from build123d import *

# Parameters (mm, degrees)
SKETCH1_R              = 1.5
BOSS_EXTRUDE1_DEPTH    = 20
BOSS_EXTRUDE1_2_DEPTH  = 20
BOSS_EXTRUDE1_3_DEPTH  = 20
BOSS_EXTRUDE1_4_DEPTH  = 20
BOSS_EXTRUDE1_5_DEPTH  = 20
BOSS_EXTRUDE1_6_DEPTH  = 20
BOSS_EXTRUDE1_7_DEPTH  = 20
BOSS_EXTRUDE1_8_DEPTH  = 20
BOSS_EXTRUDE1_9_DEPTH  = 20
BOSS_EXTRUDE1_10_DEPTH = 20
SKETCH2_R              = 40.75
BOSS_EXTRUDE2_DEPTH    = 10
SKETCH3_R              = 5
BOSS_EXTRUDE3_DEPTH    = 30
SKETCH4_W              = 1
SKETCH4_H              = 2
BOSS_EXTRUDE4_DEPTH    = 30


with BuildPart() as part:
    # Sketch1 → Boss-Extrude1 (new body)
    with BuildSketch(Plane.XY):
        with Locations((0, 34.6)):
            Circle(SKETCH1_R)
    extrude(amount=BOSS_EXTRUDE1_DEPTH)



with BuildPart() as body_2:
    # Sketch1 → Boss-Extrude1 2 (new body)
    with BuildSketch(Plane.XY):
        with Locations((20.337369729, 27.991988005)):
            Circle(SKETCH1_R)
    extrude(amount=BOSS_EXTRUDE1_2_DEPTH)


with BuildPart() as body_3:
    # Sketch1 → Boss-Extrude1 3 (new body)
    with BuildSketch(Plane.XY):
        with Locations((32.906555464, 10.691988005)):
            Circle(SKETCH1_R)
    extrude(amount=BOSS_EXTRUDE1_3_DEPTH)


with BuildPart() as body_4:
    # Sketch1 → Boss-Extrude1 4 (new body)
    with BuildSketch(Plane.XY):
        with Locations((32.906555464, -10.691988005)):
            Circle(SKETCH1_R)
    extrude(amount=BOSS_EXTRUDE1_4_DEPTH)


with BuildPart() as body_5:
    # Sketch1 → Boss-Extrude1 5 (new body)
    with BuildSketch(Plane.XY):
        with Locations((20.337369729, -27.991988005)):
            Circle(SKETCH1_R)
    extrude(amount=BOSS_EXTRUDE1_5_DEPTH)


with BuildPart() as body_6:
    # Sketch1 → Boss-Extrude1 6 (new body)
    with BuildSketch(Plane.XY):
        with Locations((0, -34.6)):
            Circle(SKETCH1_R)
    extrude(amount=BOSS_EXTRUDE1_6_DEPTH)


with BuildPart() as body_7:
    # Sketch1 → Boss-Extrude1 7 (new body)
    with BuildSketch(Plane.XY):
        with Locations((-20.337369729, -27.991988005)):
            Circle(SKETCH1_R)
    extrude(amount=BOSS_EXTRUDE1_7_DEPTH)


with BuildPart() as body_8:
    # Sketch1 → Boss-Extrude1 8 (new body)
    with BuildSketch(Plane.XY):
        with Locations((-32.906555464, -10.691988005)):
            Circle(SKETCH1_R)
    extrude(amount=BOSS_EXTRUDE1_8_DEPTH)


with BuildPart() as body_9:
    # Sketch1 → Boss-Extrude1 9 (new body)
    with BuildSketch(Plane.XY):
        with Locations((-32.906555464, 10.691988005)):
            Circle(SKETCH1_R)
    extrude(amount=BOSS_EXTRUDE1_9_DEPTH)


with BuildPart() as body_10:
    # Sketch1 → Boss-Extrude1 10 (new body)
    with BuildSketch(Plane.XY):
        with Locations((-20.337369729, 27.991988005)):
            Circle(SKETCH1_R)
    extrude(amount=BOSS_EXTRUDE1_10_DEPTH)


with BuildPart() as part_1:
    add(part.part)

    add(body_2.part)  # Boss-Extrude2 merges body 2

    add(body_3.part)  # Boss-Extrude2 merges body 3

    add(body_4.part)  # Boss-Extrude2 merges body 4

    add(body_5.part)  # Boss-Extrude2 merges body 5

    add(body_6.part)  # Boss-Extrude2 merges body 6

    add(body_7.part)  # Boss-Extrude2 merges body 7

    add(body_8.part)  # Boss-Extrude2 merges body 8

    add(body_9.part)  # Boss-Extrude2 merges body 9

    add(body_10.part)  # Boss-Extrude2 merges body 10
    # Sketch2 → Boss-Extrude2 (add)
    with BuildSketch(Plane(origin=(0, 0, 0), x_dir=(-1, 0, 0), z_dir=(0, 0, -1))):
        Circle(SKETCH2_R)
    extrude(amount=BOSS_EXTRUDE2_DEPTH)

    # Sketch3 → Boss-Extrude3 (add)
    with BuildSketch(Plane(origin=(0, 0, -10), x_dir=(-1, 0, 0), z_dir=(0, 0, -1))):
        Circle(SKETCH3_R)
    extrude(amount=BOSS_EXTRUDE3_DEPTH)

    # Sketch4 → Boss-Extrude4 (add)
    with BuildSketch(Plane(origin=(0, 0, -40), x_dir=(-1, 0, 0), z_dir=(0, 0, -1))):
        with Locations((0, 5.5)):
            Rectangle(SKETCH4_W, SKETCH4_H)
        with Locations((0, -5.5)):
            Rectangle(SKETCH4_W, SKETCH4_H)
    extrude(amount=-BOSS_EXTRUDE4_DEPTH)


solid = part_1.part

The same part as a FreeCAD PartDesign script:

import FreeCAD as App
import Part
import Sketcher

V = App.Vector


def add_polygon(sketch, points):
    """Adds a closed chain of lines whose ends are joined by coincident constraints."""
    first, n = sketch.GeometryCount, len(points)
    for a, b in zip(points, points[1:] + points[:1]):
        sketch.addGeometry(Part.LineSegment(App.Vector(*a, 0), App.Vector(*b, 0)), False)
    for i in range(n):
        sketch.addConstraint(Sketcher.Constraint("Coincident", first + i, 2, first + (i + 1) % n, 1))

doc = App.newDocument("Part")
body = doc.addObject("PartDesign::Body", "Body")

sketch1 = body.newObject("Sketcher::SketchObject", "Sketch")
sketch1.AttachmentSupport = (doc.getObject("XY_Plane"), [""])
sketch1.MapMode = "FlatFace"
sketch1.addGeometry(Part.Circle(V(0, 34.6, 0), V(0, 0, 1), 1.5), False)
sketch1.addConstraint(Sketcher.Constraint("PointOnObject", 0, 3, -2))
sketch1.addConstraint(Sketcher.Constraint("Diameter", 0, 3.0))
sketch1.addConstraint(Sketcher.Constraint("DistanceY", -1, 1, 0, 3, 34.6))
pad1 = body.newObject("PartDesign::Pad", "Pad")
pad1.Profile = sketch1
pad1.Length = 20
body2 = doc.addObject("PartDesign::Body", "Body001")

sketch2 = body2.newObject("Sketcher::SketchObject", "Sketch001")
sketch2.AttachmentSupport = (doc.getObject("XY_Plane001"), [""])
sketch2.MapMode = "FlatFace"
sketch2.addGeometry(Part.Circle(V(20.3, 28, 0), V(0, 0, 1), 1.5), False)
sketch2.addConstraint(Sketcher.Constraint("Diameter", 0, 3.0))
sketch2.addConstraint(Sketcher.Constraint("DistanceX", -1, 1, 0, 3, 20.33737))
sketch2.addConstraint(Sketcher.Constraint("DistanceY", -1, 1, 0, 3, 27.991988))
pad2 = body2.newObject("PartDesign::Pad", "Pad001")
pad2.Profile = sketch2
pad2.Length = 20
body3 = doc.addObject("PartDesign::Body", "Body002")

sketch3 = body3.newObject("Sketcher::SketchObject", "Sketch002")
sketch3.AttachmentSupport = (doc.getObject("XY_Plane002"), [""])
sketch3.MapMode = "FlatFace"
sketch3.addGeometry(Part.Circle(V(32.9, 10.7, 0), V(0, 0, 1), 1.5), False)
sketch3.addConstraint(Sketcher.Constraint("Diameter", 0, 3.0))
sketch3.addConstraint(Sketcher.Constraint("DistanceY", -1, 1, 0, 3, 10.691988))
sketch3.addConstraint(Sketcher.Constraint("DistanceX", -1, 1, 0, 3, 32.906555))
pad3 = body3.newObject("PartDesign::Pad", "Pad002")
pad3.Profile = sketch3
pad3.Length = 20
body4 = doc.addObject("PartDesign::Body", "Body003")

sketch4 = body4.newObject("Sketcher::SketchObject", "Sketch003")
sketch4.AttachmentSupport = (doc.getObject("XY_Plane003"), [""])
sketch4.MapMode = "FlatFace"
sketch4.addGeometry(Part.Circle(V(32.9, -10.7, 0), V(0, 0, 1), 1.5), False)
sketch4.addConstraint(Sketcher.Constraint("Diameter", 0, 3.0))
sketch4.addConstraint(Sketcher.Constraint("DistanceY", 0, 3, -1, 1, 10.691988))
sketch4.addConstraint(Sketcher.Constraint("DistanceX", -1, 1, 0, 3, 32.906555))
pad4 = body4.newObject("PartDesign::Pad", "Pad003")
pad4.Profile = sketch4
pad4.Length = 20
body5 = doc.addObject("PartDesign::Body", "Body004")

sketch5 = body5.newObject("Sketcher::SketchObject", "Sketch004")
sketch5.AttachmentSupport = (doc.getObject("XY_Plane004"), [""])
sketch5.MapMode = "FlatFace"
sketch5.addGeometry(Part.Circle(V(20.3, -28, 0), V(0, 0, 1), 1.5), False)
sketch5.addConstraint(Sketcher.Constraint("Diameter", 0, 3.0))
sketch5.addConstraint(Sketcher.Constraint("DistanceX", -1, 1, 0, 3, 20.33737))
sketch5.addConstraint(Sketcher.Constraint("DistanceY", 0, 3, -1, 1, 27.991988))
pad5 = body5.newObject("PartDesign::Pad", "Pad004")
pad5.Profile = sketch5
pad5.Length = 20
body6 = doc.addObject("PartDesign::Body", "Body005")

sketch6 = body6.newObject("Sketcher::SketchObject", "Sketch005")
sketch6.AttachmentSupport = (doc.getObject("XY_Plane005"), [""])
sketch6.MapMode = "FlatFace"
sketch6.addGeometry(Part.Circle(V(0, -34.6, 0), V(0, 0, 1), 1.5), False)
sketch6.addConstraint(Sketcher.Constraint("PointOnObject", 0, 3, -2))
sketch6.addConstraint(Sketcher.Constraint("Diameter", 0, 3.0))
sketch6.addConstraint(Sketcher.Constraint("DistanceY", 0, 3, -1, 1, 34.6))
pad6 = body6.newObject("PartDesign::Pad", "Pad005")
pad6.Profile = sketch6
pad6.Length = 20
body7 = doc.addObject("PartDesign::Body", "Body006")

sketch7 = body7.newObject("Sketcher::SketchObject", "Sketch006")
sketch7.AttachmentSupport = (doc.getObject("XY_Plane006"), [""])
sketch7.MapMode = "FlatFace"
sketch7.addGeometry(Part.Circle(V(-20.3, -28, 0), V(0, 0, 1), 1.5), False)
sketch7.addConstraint(Sketcher.Constraint("Diameter", 0, 3.0))
sketch7.addConstraint(Sketcher.Constraint("DistanceX", 0, 3, -1, 1, 20.33737))
sketch7.addConstraint(Sketcher.Constraint("DistanceY", 0, 3, -1, 1, 27.991988))
pad7 = body7.newObject("PartDesign::Pad", "Pad006")
pad7.Profile = sketch7
pad7.Length = 20
body8 = doc.addObject("PartDesign::Body", "Body007")

sketch8 = body8.newObject("Sketcher::SketchObject", "Sketch007")
sketch8.AttachmentSupport = (doc.getObject("XY_Plane007"), [""])
sketch8.MapMode = "FlatFace"
sketch8.addGeometry(Part.Circle(V(-32.9, -10.7, 0), V(0, 0, 1), 1.5), False)
sketch8.addConstraint(Sketcher.Constraint("Diameter", 0, 3.0))
sketch8.addConstraint(Sketcher.Constraint("DistanceY", 0, 3, -1, 1, 10.691988))
sketch8.addConstraint(Sketcher.Constraint("DistanceX", 0, 3, -1, 1, 32.906555))
pad8 = body8.newObject("PartDesign::Pad", "Pad007")
pad8.Profile = sketch8
pad8.Length = 20
body9 = doc.addObject("PartDesign::Body", "Body008")

sketch9 = body9.newObject("Sketcher::SketchObject", "Sketch008")
sketch9.AttachmentSupport = (doc.getObject("XY_Plane008"), [""])
sketch9.MapMode = "FlatFace"
sketch9.addGeometry(Part.Circle(V(-32.9, 10.7, 0), V(0, 0, 1), 1.5), False)
sketch9.addConstraint(Sketcher.Constraint("Diameter", 0, 3.0))
sketch9.addConstraint(Sketcher.Constraint("DistanceY", -1, 1, 0, 3, 10.691988))
sketch9.addConstraint(Sketcher.Constraint("DistanceX", 0, 3, -1, 1, 32.906555))
pad9 = body9.newObject("PartDesign::Pad", "Pad008")
pad9.Profile = sketch9
pad9.Length = 20
body10 = doc.addObject("PartDesign::Body", "Body009")

sketch10 = body10.newObject("Sketcher::SketchObject", "Sketch009")
sketch10.AttachmentSupport = (doc.getObject("XY_Plane009"), [""])
sketch10.MapMode = "FlatFace"
sketch10.addGeometry(Part.Circle(V(-20.3, 28, 0), V(0, 0, 1), 1.5), False)
sketch10.addConstraint(Sketcher.Constraint("Diameter", 0, 3.0))
sketch10.addConstraint(Sketcher.Constraint("DistanceX", 0, 3, -1, 1, 20.33737))
sketch10.addConstraint(Sketcher.Constraint("DistanceY", -1, 1, 0, 3, 27.991988))
pad10 = body10.newObject("PartDesign::Pad", "Pad009")
pad10.Profile = sketch10
pad10.Length = 20
body.AllowCompound = True
doc.recompute()

boolean = body.newObject("PartDesign::Boolean", "Boolean")
boolean.Type = "Fuse"
boolean.addObjects([body2])
doc.recompute()

boolean2 = body.newObject("PartDesign::Boolean", "Boolean001")
boolean2.Type = "Fuse"
boolean2.addObjects([body3])
doc.recompute()

boolean3 = body.newObject("PartDesign::Boolean", "Boolean002")
boolean3.Type = "Fuse"
boolean3.addObjects([body4])
doc.recompute()

boolean4 = body.newObject("PartDesign::Boolean", "Boolean003")
boolean4.Type = "Fuse"
boolean4.addObjects([body5])
doc.recompute()

boolean5 = body.newObject("PartDesign::Boolean", "Boolean004")
boolean5.Type = "Fuse"
boolean5.addObjects([body6])
doc.recompute()

boolean6 = body.newObject("PartDesign::Boolean", "Boolean005")
boolean6.Type = "Fuse"
boolean6.addObjects([body7])
doc.recompute()

boolean7 = body.newObject("PartDesign::Boolean", "Boolean006")
boolean7.Type = "Fuse"
boolean7.addObjects([body8])
doc.recompute()

boolean8 = body.newObject("PartDesign::Boolean", "Boolean007")
boolean8.Type = "Fuse"
boolean8.addObjects([body9])
doc.recompute()

boolean9 = body.newObject("PartDesign::Boolean", "Boolean008")
boolean9.Type = "Fuse"
boolean9.addObjects([body10])

sketch11 = body.newObject("Sketcher::SketchObject", "Sketch010")
sketch11.AttachmentSupport = (doc.getObject("XY_Plane"), [""])
sketch11.MapMode = "FlatFace"
sketch11.addGeometry(Part.Circle(V(0, 0, 0), V(0, 0, 1), 41), False)
sketch11.addConstraint(Sketcher.Constraint("Coincident", 0, 3, -1, 1))
sketch11.addConstraint(Sketcher.Constraint("Diameter", 0, 81.5))
pad11 = body.newObject("PartDesign::Pad", "Pad010")
pad11.Profile = sketch11
pad11.Length = 10
pad11.Reversed = True

sketch12 = body.newObject("Sketcher::SketchObject", "Sketch011")
sketch12.AttachmentSupport = (doc.getObject("XY_Plane"), [""])
sketch12.MapMode = "FlatFace"
sketch12.AttachmentOffset = App.Placement(V(0, 0, -10), App.Rotation())
sketch12.addGeometry(Part.Circle(V(0, 0, 0), V(0, 0, 1), 5), False)
sketch12.addConstraint(Sketcher.Constraint("Coincident", 0, 3, -1, 1))
sketch12.addConstraint(Sketcher.Constraint("Diameter", 0, 10.0))
pad12 = body.newObject("PartDesign::Pad", "Pad011")
pad12.Profile = sketch12
pad12.Length = 30
pad12.Reversed = True

sketch13 = body.newObject("Sketcher::SketchObject", "Sketch012")
sketch13.AttachmentSupport = (doc.getObject("XY_Plane"), [""])
sketch13.MapMode = "FlatFace"
sketch13.AttachmentOffset = App.Placement(V(0, 0, -40), App.Rotation())
add_polygon(sketch13, [(0.5, 6.5), (0.5, 4.5), (-0.5, 4.5), (-0.5, 6.5)])
add_polygon(sketch13, [(0.5, -4.5), (0.5, -6.5), (-0.5, -6.5), (-0.5, -4.5)])
sketch13.addConstraint(Sketcher.Constraint("Vertical", 0))
sketch13.addConstraint(Sketcher.Constraint("Horizontal", 1))
sketch13.addConstraint(Sketcher.Constraint("Vertical", 2))
sketch13.addConstraint(Sketcher.Constraint("Horizontal", 3))
sketch13.addConstraint(Sketcher.Constraint("Vertical", 4))
sketch13.addConstraint(Sketcher.Constraint("Horizontal", 5))
sketch13.addConstraint(Sketcher.Constraint("Vertical", 6))
sketch13.addConstraint(Sketcher.Constraint("Horizontal", 7))
sketch13.addConstraint(Sketcher.Constraint("Symmetric", 2, 2, 4, 2, -1, 1))
sketch13.addConstraint(Sketcher.Constraint("Symmetric", 0, 2, 6, 2, -1, 1))
sketch13.addConstraint(Sketcher.Constraint("Vertical", 3, 2, 4, 2))
sketch13.addConstraint(Sketcher.Constraint("DistanceX", 1, 2, 1, 1, 1.0))
sketch13.addConstraint(Sketcher.Constraint("DistanceY", 0, 2, 0, 1, 2.0))
sketch13.addConstraint(Sketcher.Constraint("DistanceY", 4, 2, 0, 2, 11.0))
pad13 = body.newObject("PartDesign::Pad", "Pad012")
pad13.Profile = sketch13
pad13.Length = 30

doc.recompute()
